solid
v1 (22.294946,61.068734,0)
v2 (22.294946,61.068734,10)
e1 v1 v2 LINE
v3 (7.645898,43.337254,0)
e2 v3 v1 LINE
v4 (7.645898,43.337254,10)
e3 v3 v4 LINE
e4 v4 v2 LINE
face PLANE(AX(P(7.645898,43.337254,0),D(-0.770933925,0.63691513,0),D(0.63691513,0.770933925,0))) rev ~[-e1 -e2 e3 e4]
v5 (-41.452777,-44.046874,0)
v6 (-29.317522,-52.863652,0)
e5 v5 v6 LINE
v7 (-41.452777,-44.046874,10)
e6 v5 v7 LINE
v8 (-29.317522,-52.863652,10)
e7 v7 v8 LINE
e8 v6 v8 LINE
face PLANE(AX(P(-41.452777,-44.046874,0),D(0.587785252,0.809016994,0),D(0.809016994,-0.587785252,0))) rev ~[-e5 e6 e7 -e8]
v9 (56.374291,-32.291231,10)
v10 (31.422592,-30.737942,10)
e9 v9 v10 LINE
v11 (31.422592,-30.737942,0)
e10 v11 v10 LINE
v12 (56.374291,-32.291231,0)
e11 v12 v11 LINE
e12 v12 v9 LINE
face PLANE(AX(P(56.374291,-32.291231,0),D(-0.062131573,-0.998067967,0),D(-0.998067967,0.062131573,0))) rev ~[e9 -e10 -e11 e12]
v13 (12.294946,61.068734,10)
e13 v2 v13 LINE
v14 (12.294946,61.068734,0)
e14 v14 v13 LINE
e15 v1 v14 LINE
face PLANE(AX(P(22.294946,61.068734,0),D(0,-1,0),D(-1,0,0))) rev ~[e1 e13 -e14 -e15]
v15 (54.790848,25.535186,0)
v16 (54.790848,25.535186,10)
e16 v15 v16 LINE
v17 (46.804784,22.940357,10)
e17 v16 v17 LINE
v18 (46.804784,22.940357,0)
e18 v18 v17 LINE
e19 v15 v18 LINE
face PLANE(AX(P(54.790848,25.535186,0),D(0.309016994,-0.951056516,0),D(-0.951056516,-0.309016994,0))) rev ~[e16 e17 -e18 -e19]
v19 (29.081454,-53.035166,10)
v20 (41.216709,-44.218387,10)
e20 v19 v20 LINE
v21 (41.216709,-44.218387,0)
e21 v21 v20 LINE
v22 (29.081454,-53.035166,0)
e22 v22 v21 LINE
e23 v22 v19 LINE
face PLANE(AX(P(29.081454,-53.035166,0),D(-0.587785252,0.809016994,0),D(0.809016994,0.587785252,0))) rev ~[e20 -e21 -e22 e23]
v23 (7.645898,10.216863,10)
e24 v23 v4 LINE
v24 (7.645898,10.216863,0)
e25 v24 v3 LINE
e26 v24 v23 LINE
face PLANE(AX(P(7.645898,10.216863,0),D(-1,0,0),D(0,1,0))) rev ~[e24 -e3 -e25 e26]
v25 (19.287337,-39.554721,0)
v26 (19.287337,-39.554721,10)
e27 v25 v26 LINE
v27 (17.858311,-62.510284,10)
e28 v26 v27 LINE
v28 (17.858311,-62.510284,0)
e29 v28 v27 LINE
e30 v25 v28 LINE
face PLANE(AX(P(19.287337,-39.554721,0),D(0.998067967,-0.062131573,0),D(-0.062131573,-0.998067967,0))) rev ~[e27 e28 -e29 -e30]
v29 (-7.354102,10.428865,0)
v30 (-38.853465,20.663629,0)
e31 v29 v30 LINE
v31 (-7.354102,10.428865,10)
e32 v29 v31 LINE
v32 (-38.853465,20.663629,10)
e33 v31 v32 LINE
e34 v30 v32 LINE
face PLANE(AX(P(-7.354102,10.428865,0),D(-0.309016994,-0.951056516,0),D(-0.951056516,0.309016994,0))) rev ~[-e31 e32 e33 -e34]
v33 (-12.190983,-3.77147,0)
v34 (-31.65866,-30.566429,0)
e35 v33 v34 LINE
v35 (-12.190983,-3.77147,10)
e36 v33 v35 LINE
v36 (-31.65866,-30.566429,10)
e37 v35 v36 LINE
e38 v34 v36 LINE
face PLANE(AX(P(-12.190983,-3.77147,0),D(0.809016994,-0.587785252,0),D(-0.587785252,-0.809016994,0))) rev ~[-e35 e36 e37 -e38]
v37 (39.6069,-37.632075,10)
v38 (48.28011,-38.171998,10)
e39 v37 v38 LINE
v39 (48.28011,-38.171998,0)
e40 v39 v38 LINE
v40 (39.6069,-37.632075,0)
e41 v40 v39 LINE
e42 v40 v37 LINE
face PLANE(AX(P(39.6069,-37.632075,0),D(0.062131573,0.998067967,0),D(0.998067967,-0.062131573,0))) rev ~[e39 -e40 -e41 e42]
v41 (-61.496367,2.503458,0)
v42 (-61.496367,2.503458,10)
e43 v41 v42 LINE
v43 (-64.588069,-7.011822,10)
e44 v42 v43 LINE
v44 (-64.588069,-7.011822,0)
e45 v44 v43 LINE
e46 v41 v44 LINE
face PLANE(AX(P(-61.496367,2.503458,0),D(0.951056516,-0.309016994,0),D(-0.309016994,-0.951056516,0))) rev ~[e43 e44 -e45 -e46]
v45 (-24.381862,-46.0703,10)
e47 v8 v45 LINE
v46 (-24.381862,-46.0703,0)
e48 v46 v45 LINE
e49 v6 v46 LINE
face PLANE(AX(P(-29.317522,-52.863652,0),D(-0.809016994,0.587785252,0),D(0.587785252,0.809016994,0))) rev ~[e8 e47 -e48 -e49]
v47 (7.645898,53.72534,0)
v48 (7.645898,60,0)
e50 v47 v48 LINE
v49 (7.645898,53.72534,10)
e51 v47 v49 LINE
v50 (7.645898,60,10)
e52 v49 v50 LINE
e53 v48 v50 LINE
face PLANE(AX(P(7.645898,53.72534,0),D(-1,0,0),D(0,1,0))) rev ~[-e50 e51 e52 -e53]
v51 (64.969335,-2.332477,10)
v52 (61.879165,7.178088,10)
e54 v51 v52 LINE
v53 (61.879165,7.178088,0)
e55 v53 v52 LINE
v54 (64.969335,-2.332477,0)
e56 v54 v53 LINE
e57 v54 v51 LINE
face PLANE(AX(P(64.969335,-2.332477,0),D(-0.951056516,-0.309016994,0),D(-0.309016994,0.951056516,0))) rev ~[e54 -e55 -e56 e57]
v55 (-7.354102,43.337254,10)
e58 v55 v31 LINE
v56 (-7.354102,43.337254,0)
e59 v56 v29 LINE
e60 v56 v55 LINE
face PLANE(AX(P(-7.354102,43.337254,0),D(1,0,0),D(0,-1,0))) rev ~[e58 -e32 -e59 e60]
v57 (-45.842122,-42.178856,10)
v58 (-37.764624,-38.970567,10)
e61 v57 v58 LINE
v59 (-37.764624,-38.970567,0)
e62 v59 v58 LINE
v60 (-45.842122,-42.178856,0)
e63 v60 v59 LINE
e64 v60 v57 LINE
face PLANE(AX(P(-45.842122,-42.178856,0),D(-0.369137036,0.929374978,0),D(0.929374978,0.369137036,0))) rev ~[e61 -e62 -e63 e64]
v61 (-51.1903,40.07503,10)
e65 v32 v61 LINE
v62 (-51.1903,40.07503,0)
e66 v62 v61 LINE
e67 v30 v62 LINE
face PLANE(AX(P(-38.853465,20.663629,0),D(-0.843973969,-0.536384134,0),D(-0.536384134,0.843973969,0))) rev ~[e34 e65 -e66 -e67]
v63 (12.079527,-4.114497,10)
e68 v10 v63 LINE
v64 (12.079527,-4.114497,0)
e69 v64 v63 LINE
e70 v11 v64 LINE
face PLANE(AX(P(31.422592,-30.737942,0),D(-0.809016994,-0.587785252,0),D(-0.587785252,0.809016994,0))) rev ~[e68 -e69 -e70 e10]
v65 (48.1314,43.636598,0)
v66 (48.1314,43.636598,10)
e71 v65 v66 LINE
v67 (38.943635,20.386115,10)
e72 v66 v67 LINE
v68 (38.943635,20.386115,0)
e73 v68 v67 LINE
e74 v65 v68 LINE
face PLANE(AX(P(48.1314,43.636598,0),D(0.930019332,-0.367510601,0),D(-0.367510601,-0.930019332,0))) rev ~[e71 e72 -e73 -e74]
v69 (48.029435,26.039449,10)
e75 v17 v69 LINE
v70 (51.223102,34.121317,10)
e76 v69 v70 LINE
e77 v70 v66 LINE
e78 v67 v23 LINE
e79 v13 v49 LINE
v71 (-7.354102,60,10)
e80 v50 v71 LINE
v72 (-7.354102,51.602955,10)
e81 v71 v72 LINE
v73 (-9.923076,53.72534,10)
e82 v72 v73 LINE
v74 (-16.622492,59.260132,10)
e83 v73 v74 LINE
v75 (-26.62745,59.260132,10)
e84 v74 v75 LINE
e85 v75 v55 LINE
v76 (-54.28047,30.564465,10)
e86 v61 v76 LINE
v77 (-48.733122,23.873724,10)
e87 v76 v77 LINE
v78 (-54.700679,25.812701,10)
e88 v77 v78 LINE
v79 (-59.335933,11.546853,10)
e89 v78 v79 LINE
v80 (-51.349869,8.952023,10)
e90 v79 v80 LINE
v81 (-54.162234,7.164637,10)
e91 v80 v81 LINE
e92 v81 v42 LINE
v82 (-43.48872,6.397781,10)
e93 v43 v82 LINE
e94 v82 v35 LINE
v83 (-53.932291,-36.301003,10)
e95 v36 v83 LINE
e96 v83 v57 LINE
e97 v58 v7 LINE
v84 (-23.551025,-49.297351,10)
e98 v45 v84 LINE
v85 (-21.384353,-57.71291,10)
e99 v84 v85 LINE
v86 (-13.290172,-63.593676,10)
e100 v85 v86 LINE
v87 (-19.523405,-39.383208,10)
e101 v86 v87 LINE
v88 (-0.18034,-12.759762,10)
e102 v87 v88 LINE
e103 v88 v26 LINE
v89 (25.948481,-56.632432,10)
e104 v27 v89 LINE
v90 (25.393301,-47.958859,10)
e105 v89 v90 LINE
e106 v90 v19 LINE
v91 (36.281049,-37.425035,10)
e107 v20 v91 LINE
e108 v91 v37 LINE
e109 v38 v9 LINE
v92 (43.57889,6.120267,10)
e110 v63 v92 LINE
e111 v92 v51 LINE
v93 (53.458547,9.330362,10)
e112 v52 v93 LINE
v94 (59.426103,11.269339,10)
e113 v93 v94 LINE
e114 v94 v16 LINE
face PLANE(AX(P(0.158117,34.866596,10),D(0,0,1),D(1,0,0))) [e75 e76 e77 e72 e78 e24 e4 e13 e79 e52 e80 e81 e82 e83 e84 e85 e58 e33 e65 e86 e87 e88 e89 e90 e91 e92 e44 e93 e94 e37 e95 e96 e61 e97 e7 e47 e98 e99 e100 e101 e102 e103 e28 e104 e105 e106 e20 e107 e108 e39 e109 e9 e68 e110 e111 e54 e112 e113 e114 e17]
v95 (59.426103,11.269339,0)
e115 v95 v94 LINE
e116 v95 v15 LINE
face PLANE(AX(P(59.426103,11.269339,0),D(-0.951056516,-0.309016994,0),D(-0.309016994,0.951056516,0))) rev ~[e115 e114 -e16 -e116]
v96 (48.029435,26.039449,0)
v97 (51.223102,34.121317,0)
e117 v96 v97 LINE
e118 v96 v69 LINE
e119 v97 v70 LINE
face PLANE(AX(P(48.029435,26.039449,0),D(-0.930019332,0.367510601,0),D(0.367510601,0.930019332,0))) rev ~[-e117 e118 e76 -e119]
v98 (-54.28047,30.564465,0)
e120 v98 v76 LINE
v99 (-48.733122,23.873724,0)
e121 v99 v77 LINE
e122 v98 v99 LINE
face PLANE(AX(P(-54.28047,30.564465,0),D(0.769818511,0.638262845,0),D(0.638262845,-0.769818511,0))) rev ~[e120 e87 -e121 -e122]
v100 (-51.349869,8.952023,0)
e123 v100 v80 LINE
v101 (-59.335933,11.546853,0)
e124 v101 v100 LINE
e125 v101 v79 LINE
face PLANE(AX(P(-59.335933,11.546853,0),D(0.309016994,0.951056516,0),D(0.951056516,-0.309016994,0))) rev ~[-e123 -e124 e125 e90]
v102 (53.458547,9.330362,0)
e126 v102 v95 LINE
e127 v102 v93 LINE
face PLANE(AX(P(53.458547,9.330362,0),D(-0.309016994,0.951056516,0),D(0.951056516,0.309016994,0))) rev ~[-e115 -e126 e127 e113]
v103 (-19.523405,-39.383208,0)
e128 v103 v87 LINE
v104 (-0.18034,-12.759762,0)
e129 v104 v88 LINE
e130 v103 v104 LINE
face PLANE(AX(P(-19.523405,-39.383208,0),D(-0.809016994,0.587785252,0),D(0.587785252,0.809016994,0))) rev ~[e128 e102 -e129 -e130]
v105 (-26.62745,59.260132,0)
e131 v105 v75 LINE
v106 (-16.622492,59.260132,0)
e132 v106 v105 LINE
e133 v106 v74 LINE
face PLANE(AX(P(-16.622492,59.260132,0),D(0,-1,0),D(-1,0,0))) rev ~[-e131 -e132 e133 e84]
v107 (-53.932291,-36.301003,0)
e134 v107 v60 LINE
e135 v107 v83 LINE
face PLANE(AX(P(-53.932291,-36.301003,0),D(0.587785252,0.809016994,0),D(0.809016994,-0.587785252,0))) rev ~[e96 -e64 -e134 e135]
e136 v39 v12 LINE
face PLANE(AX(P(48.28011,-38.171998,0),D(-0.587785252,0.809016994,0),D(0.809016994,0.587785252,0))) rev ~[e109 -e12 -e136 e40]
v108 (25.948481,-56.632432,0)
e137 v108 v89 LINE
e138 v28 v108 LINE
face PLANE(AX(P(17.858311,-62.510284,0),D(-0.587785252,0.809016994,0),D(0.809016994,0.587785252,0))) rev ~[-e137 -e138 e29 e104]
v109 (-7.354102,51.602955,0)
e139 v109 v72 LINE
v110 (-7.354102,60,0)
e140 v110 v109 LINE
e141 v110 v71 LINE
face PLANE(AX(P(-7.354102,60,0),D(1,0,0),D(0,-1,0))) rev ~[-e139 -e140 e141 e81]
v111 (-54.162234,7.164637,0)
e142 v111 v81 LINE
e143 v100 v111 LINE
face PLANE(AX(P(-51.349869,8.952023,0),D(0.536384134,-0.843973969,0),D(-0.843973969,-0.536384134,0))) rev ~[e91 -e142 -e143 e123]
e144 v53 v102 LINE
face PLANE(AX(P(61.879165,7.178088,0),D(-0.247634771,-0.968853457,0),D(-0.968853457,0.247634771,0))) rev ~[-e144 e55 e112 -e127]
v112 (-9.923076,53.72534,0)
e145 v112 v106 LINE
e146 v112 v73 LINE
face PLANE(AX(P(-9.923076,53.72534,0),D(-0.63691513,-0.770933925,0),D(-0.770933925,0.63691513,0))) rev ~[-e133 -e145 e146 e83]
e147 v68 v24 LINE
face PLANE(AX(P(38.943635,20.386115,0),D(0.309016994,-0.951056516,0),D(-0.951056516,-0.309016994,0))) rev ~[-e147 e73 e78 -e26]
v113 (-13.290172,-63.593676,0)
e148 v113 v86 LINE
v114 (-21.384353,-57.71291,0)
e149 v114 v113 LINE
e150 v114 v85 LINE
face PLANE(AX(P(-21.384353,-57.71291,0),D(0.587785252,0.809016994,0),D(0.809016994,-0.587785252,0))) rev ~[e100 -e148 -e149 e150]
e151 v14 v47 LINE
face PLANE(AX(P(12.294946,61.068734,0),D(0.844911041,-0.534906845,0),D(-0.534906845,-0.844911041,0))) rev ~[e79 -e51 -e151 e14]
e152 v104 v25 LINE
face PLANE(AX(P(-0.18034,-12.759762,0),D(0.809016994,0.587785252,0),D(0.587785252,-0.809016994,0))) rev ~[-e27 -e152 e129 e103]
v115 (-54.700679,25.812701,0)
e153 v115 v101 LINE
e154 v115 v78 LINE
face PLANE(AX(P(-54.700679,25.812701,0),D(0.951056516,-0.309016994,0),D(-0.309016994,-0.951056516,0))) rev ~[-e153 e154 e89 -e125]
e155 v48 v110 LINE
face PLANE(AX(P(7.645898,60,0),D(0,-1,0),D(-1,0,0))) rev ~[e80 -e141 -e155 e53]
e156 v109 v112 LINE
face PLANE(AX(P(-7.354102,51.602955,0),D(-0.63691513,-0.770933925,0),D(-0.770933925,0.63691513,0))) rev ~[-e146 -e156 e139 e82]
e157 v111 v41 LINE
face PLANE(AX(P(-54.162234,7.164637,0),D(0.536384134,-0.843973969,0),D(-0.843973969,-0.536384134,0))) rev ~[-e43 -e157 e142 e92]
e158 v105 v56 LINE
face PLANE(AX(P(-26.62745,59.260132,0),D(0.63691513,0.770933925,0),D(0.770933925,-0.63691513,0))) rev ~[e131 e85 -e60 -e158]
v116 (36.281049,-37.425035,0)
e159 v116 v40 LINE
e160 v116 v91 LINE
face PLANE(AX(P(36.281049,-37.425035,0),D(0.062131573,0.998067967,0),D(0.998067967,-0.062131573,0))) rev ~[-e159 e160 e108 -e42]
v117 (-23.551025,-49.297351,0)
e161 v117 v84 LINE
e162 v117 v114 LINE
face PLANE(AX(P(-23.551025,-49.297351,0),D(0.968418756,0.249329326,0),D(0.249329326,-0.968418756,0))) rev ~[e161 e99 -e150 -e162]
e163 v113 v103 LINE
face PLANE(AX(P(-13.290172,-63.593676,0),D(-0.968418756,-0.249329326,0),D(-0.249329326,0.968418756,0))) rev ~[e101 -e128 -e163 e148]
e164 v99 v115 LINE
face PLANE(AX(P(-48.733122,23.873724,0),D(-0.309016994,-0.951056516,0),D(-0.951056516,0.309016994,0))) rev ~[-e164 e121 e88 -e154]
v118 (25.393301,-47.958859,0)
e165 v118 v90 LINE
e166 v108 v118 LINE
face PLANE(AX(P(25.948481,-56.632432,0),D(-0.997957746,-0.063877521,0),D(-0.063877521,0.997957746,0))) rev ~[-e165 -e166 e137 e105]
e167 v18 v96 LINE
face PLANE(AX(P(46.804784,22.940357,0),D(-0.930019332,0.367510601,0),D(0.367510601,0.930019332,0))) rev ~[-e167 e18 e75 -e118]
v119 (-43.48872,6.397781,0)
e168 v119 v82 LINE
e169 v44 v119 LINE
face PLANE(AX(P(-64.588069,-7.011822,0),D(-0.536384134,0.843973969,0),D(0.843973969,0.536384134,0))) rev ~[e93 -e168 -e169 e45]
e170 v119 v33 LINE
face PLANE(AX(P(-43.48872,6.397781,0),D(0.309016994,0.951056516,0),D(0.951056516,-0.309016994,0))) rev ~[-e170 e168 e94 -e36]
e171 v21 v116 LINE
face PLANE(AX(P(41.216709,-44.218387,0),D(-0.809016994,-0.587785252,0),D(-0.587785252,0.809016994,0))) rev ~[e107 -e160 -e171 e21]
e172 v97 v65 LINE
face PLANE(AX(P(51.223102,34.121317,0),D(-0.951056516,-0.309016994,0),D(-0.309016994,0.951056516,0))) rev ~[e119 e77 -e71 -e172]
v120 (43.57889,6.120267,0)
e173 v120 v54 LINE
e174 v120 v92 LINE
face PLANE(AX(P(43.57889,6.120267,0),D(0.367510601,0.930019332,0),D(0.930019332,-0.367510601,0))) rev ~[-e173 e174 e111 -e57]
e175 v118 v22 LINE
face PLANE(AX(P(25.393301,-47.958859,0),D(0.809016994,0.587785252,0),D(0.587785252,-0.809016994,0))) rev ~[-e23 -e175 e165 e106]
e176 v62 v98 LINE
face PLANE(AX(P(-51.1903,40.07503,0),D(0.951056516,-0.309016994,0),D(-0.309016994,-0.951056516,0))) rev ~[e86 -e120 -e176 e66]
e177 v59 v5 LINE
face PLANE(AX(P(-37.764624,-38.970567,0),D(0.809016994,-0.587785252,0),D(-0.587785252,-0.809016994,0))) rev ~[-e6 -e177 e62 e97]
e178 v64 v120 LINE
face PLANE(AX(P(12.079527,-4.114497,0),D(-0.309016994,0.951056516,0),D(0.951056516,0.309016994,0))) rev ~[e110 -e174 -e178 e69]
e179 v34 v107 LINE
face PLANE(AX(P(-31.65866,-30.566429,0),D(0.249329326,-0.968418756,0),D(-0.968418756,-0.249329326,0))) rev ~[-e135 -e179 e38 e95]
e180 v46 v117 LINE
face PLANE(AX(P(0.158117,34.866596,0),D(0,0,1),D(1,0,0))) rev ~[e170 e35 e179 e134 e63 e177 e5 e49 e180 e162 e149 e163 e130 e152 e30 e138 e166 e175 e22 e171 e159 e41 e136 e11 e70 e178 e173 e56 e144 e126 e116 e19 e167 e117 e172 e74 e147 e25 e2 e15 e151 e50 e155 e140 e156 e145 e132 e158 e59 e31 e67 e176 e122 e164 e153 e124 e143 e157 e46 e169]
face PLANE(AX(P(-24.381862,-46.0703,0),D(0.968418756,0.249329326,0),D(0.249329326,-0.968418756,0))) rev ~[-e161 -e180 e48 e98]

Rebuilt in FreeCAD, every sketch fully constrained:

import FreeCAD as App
import Part
import Sketcher
Q = App.Units.Quantity


def add_polygon(sketch, points):
    """Adds a closed chain of lines whose ends are joined by coincident constraints."""
    first, n = sketch.GeometryCount, len(points)
    for a, b in zip(points, points[1:] + points[:1]):
        sketch.addGeometry(Part.LineSegment(App.Vector(*a, 0), App.Vector(*b, 0)), False)
    for i in range(n):
        sketch.addConstraint(Sketcher.Constraint("Coincident", first + i, 2, first + (i + 1) % n, 1))

doc = App.newDocument("Part")
body = doc.addObject("PartDesign::Body", "Body")

# Sketch on XY plane
sketch1 = doc.addObject("Sketcher::SketchObject", "Sketch")
body.addObject(sketch1)
sketch1.AttachmentSupport = (doc.XY_Plane, [""])
sketch1.MapMode = "FlatFace"
add_polygon(sketch1, [(38.9, 20.4), (7.6, 10.2), (7.6, 43.3), (22.3, 61.1), (12.3, 61.1), (7.6, 53.7), (7.6, 60), (-7.4, 60), (-7.4, 51.6), (-9.9, 53.7), (-16.6, 59.3), (-26.6, 59.3), (-7.4, 43.3), (-7.4, 10.4), (-38.9, 20.7), (-51.2, 40.1), (-54.3, 30.6), (-48.7, 23.9), (-54.7, 25.8), (-59.3, 11.5), (-51.3, 9), (-54.2, 7.2), (-61.5, 2.5), (-64.6, -7), (-43.5, 6.4), (-12.2, -3.8), (-31.7, -30.6), (-53.9, -36.3), (-45.8, -42.2), (-37.8, -39), (-41.5, -44), (-29.3, -52.9), (-24.4, -46.1), (-23.6, -49.3), (-21.4, -57.7), (-13.3, -63.6), (-19.5, -39.4), (-0.2, -12.8), (19.3, -39.6), (17.9, -62.5), (25.9, -56.6), (25.4, -48), (29.1, -53), (41.2, -44.2), (36.3, -37.4), (39.6, -37.6), (48.3, -38.2), (56.4, -32.3), (31.4, -30.7), (12.1, -4.1), (43.6, 6.1), (65, -2.3), (61.9, 7.2), (53.5, 9.3), (59.4, 11.3), (54.8, 25.5), (46.8, 22.9), (48, 26), (51.2, 34.1), (48.1, 43.6)])  # lines 0-59
sketch1.addConstraint([
    Sketcher.Constraint("Vertical", 1),
    Sketcher.Constraint("Horizontal", 3),
    Sketcher.Constraint("Vertical", 5),
    Sketcher.Constraint("Horizontal", 6),
    Sketcher.Constraint("Vertical", 7),
    Sketcher.Constraint("Horizontal", 10),
    Sketcher.Constraint("Vertical", 12),
    Sketcher.Constraint("Perpendicular", 2, 8),
    Sketcher.Constraint("Parallel", 8, 9),
    Sketcher.Constraint("Parallel", 9, 11),
    Sketcher.Constraint("Perpendicular", 13, 15),
    Sketcher.Constraint("Perpendicular", 15, 17),
    Sketcher.Constraint("Perpendicular", 17, 18),
    Sketcher.Constraint("Perpendicular", 18, 19),
    Sketcher.Constraint("Perpendicular", 14, 20),
    Sketcher.Constraint("Parallel", 20, 21),
    Sketcher.Constraint("Perpendicular", 19, 22),
    Sketcher.Constraint("Parallel", 21, 23),
    Sketcher.Constraint("Perpendicular", 22, 24),
    Sketcher.Constraint("Perpendicular", 25, 27),
    Sketcher.Constraint("Perpendicular", 27, 29),
    Sketcher.Constraint("Perpendicular", 29, 30),
    Sketcher.Constraint("Perpendicular", 30, 31),
    Sketcher.Constraint("Perpendicular", 26, 32),
    Sketcher.Constraint("Parallel", 32, 33),
    Sketcher.Constraint("Perpendicular", 31, 34),
    Sketcher.Constraint("Parallel", 33, 35),
    Sketcher.Constraint("Perpendicular", 34, 36),
    Sketcher.Constraint("Perpendicular", 37, 39),
    Sketcher.Constraint("Perpendicular", 39, 41),
    Sketcher.Constraint("Perpendicular", 41, 42),
    Sketcher.Constraint("Perpendicular", 42, 43),
    Sketcher.Constraint("Perpendicular", 38, 44),
    Sketcher.Constraint("Parallel", 44, 45),
    Sketcher.Constraint("Perpendicular", 43, 46),
    Sketcher.Constraint("Parallel", 45, 47),
    Sketcher.Constraint("Perpendicular", 46, 48),
    Sketcher.Constraint("Parallel", 0, 49),
    Sketcher.Constraint("Perpendicular", 49, 51),
    Sketcher.Constraint("Perpendicular", 51, 53),
    Sketcher.Constraint("Perpendicular", 53, 54),
    Sketcher.Constraint("Perpendicular", 54, 55),
    Sketcher.Constraint("Perpendicular", 50, 56),
    Sketcher.Constraint("Parallel", 56, 57),
    Sketcher.Constraint("Perpendicular", 55, 58),
    Sketcher.Constraint("Parallel", 57, 59),
    Sketcher.Constraint("Horizontal", 4, 2, 8, 2),
    Sketcher.Constraint("Horizontal", 1, 2, 11, 2),
    Sketcher.Constraint("Vertical", 1, 2, 4, 2),
    Sketcher.Constraint("Vertical", 7, 2, 11, 2),
    Sketcher.Constraint("Equal", 2, 14),
    Sketcher.Constraint("Equal", 4, 16),
    Sketcher.Constraint("Equal", 8, 20),
    Sketcher.Constraint("Equal", 9, 21),
    Sketcher.Constraint("Equal", 11, 23),
    Sketcher.Constraint("Equal", 0, 24),
    Sketcher.Constraint("Equal", 13, 25),
    Sketcher.Constraint("Equal", 14, 26),
    Sketcher.Constraint("Equal", 15, 27),
    Sketcher.Constraint("Equal", 16, 28),
    Sketcher.Constraint("Equal", 17, 29),
    Sketcher.Constraint("Equal", 18, 30),
    Sketcher.Constraint("Equal", 19, 31),
    Sketcher.Constraint("Equal", 20, 32),
    Sketcher.Constraint("Equal", 21, 33),
    Sketcher.Constraint("Equal", 22, 34),
    Sketcher.Constraint("Equal", 23, 35),
    Sketcher.Constraint("Equal", 24, 36),
    Sketcher.Constraint("Equal", 25, 37),
    Sketcher.Constraint("Equal", 26, 38),
    Sketcher.Constraint("Equal", 27, 39),
    Sketcher.Constraint("Equal", 28, 40),
    Sketcher.Constraint("Equal", 29, 41),
    Sketcher.Constraint("Equal", 30, 42),
    Sketcher.Constraint("Equal", 31, 43),
    Sketcher.Constraint("Equal", 32, 44),
    Sketcher.Constraint("Equal", 33, 45),
    Sketcher.Constraint("Equal", 34, 46),
    Sketcher.Constraint("Equal", 35, 47),
    Sketcher.Constraint("Equal", 36, 48),
    Sketcher.Constraint("Equal", 37, 49),
    Sketcher.Constraint("Equal", 38, 50),
    Sketcher.Constraint("Equal", 39, 51),
    Sketcher.Constraint("Equal", 40, 52),
    Sketcher.Constraint("Equal", 41, 53),
    Sketcher.Constraint("Equal", 42, 54),
    Sketcher.Constraint("Equal", 43, 55),
    Sketcher.Constraint("Equal", 44, 56),
    Sketcher.Constraint("Equal", 45, 57),
    Sketcher.Constraint("Equal", 46, 58),
    Sketcher.Constraint("Equal", 47, 59),
    Sketcher.Constraint("DistanceX", 3, 2, 3, 1, Q("10 mm")),
    Sketcher.Constraint("DistanceX", 6, 2, 6, 1, Q("15 mm")),
    Sketcher.Constraint("Angle", 0, Q("-162 deg")),
    Sketcher.Constraint("Angle", 13, Q("162 deg")),
    Sketcher.Constraint("Angle", 25, Q("-126 deg")),
    Sketcher.Constraint("Angle", 37, Q("-54 deg")),
    Sketcher.Constraint("Distance", 2, Q("23 mm")),
    Sketcher.Constraint("Distance", 11, Q("25 mm")),
    Sketcher.Constraint("Distance", 15, Q("10 mm")),
    Sketcher.Constraint("Distance", 18, Q("15 mm")),
    Sketcher.Constraint("DistanceY", -1, 1, 5, 2, Q("60 mm")),
    Sketcher.Constraint("Distance", 9, Q("8.69 mm")),
    Sketcher.Constraint("DistanceY", 45, 2, -1, 1, Q("38.171998 mm")),
    Sketcher.Constraint("DistanceX", 57, 2, 53, 2, Q("8.203001 mm")),
    Sketcher.Constraint("DistanceX", 10, 2, 10, 1, Q("10.004958 mm")),
    Sketcher.Constraint("DistanceY", 1, 1, 1, 2, Q("33.120391 mm")),
    Sketcher.Constraint("DistanceY", 5, 1, 5, 2, Q("6.27466 mm")),
    Sketcher.Constraint("DistanceY", 12, 2, 12, 1, Q("32.908388 mm")),
    Sketcher.Constraint("DistanceX", 14, 2, -1, 1, Q("51.1903 mm")),
    Sketcher.Constraint("DistanceY", -1, 1, 17, 2, Q("25.812701 mm")),
    Sketcher.Constraint("DistanceY", 31, 2, -1, 1, Q("46.0703 mm")),
    Sketcher.Constraint("DistanceX", -1, 1, 40, 2, Q("25.393301 mm")),
    Sketcher.Constraint("DistanceX", -1, 1, 44, 2, Q("39.6069 mm")),
    Sketcher.Constraint("DistanceX", -1, 1, 58, 2, Q("48.1314 mm")),
    Sketcher.Constraint("DistanceY", 1, 2, 7, 2, Q("8.265701 mm")),
    Sketcher.Constraint("DistanceY", 13, 2, 14, 2, Q("19.411401 mm")),
    Sketcher.Constraint("DistanceY", 14, 2, 10, 2, Q("19.185102 mm")),
    Sketcher.Constraint("DistanceX", 15, 2, 19, 2, Q("2.930601 mm")),
    Sketcher.Constraint("DistanceX", 22, 2, 19, 2, Q("13.238201 mm")),
])
pad1 = doc.addObject("PartDesign::Pad", "Pad")
body.addObject(pad1)
pad1.Profile = sketch1
pad1.Length = 10

doc.recompute()
